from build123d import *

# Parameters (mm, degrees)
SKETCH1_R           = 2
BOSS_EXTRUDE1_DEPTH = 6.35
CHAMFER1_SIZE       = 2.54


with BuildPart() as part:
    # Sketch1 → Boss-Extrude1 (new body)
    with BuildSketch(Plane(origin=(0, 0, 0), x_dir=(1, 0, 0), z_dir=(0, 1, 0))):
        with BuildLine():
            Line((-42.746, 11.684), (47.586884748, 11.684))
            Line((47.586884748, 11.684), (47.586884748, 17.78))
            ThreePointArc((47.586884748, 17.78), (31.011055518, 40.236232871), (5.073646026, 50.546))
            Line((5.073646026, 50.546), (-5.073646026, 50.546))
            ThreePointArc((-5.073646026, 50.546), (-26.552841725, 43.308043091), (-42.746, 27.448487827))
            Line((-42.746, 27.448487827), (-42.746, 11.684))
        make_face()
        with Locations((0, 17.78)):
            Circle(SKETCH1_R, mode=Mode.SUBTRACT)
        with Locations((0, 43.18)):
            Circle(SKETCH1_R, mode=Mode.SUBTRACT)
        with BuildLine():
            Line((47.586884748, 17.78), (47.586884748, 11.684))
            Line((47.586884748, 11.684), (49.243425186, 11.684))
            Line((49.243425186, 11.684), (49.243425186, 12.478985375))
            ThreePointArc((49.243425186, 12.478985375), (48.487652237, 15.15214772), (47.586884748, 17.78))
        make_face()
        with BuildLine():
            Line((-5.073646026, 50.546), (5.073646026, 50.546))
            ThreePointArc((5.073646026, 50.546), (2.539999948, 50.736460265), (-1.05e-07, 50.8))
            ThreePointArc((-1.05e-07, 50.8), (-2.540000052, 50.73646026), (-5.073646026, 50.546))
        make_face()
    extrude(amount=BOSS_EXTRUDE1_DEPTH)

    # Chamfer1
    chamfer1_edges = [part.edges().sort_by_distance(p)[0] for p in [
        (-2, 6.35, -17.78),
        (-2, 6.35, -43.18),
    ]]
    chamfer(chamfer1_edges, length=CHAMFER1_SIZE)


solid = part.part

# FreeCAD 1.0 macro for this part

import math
import FreeCAD as App
import Part
import Sketcher

V = App.Vector
Q = App.Units.Quantity


def edges_at(feature, points):
    """Names of the edges that pass closest to the given points."""
    edges = feature.Shape.Edges
    near = lambda p: min(range(len(edges)), key=lambda i: edges[i].distToShape(Part.Vertex(*p))[0])
    return sorted({f"Edge{near(p) + 1}" for p in points})

doc = App.newDocument("Part")
params = doc.addObject("Spreadsheet::Sheet", "Params")
for row, (alias, value) in enumerate([
    ("sketch1_radius", "2 in"),
    ("pad1_length", "0.25 in"),
    ("chamfer_size", "0.1 in"),
], start=1):
    params.set(f"A{row}", alias)
    params.set(f"B{row}", "=" + value)
    params.setAlias(f"B{row}", alias)

body = doc.addObject("PartDesign::Body", "Body")

sketch1 = body.newObject("Sketcher::SketchObject", "Sketch")
sketch1.AttachmentSupport = (doc.getObject("XZ_Plane"), [""])
sketch1.MapMode = "FlatFace"
sketch1.addGeometry([
    Part.LineSegment(V(-42.7, -11.7, 0), V(49.2, -11.7, 0)),
    Part.LineSegment(V(49.2, -11.7, 0), V(49.2, -12.5, 0)),
    Part.ArcOfCircle(Part.Circle(V(0, 0, 0), V(0, 0, 1), 50.8), math.radians(-20.49), math.radians(-14.22)),
    Part.ArcOfCircle(Part.Circle(V(0, 0, 0), V(0, 0, 1), 50.8), math.radians(-84), math.radians(-20)),
    Part.ArcOfCircle(Part.Circle(V(0, 0, 0), V(0, 0, 1), 50.8), math.radians(-90), math.radians(-84.27)),
    Part.ArcOfCircle(Part.Circle(V(0, 0, 0), V(0, 0, 1), 50.8), math.radians(-95.73), math.radians(-90)),
    Part.ArcOfCircle(Part.Circle(V(0, 0, 0), V(0, 0, 1), 50.8), math.radians(-147), math.radians(-96)),
    Part.LineSegment(V(-42.7, -27.4, 0), V(-42.7, -11.7, 0)),
    Part.Circle(V(0, -17.8, 0), V(0, 0, 1), 2),
    Part.Circle(V(0, -43.2, 0), V(0, 0, 1), 2),
], False)
sketch1.addConstraint([
    Sketcher.Constraint("Coincident", 0, 2, 1, 1),
    Sketcher.Constraint("Coincident", 1, 2, 2, 2),
    Sketcher.Constraint("Tangent", 2, 1, 3, 2),
    Sketcher.Constraint("Tangent", 3, 1, 4, 2),
    Sketcher.Constraint("Tangent", 4, 1, 5, 2),
    Sketcher.Constraint("Tangent", 5, 1, 6, 2),
    Sketcher.Constraint("Coincident", 6, 1, 7, 1),
    Sketcher.Constraint("Coincident", 7, 2, 0, 1),
    Sketcher.Constraint("Horizontal", 0),
    Sketcher.Constraint("Vertical", 1),
    Sketcher.Constraint("Vertical", 7),
    Sketcher.Constraint("Coincident", 2, 3, -1, 1),
    Sketcher.Constraint("Coincident", 4, 3, -1, 1),
    Sketcher.Constraint("Coincident", 6, 3, -1, 1),
    Sketcher.Constraint("Equal", 8, 9),
    Sketcher.Constraint("PointOnObject", 8, 3, -2),
    Sketcher.Constraint("PointOnObject", 9, 3, -2),
    Sketcher.Constraint("PointOnObject", 4, 1, -2),
    Sketcher.Constraint("Horizontal", 8, 3, 2, 1),
    Sketcher.Constraint("Horizontal", 3, 1, 5, 1),
    Sketcher.Constraint("Radius", 2, Q("2 in")),
    Sketcher.Constraint("DistanceY", 9, 3, 8, 3, Q("1 in")),
    Sketcher.Constraint("DistanceY", 8, 3, -1, 1, Q("0.7 in")),
    Sketcher.Constraint("Diameter", 8, Q("4 mm")),
    Sketcher.Constraint("DistanceY", 0, 2, -1, 1, Q("0.46 in")),
    Sketcher.Constraint("DistanceY", 3, 1, -1, 1, Q("1.99 in")),
    Sketcher.Constraint("DistanceX", 6, 1, -1, 1, Q("42.746 mm")),
    Sketcher.Constraint("DistanceX", 0, 1, 0, 2, Q("91.989425 mm")),
])
sketch1.setExpression("Constraints[20]", "Params.sketch1_radius")
pad1 = body.newObject("PartDesign::Pad", "Pad")
pad1.Profile = sketch1
pad1.setExpression("Length", "Params.pad1_length")
pad1.Reversed = True
doc.recompute()

chamfer = body.newObject("PartDesign::Chamfer", "Chamfer")
chamfer.Base = (pad1, edges_at(pad1, [(-2, 6.35, -17.78), (-2, 6.35, -43.18)]))
chamfer.setExpression("Size", "Params.chamfer_size")

doc.recompute()
